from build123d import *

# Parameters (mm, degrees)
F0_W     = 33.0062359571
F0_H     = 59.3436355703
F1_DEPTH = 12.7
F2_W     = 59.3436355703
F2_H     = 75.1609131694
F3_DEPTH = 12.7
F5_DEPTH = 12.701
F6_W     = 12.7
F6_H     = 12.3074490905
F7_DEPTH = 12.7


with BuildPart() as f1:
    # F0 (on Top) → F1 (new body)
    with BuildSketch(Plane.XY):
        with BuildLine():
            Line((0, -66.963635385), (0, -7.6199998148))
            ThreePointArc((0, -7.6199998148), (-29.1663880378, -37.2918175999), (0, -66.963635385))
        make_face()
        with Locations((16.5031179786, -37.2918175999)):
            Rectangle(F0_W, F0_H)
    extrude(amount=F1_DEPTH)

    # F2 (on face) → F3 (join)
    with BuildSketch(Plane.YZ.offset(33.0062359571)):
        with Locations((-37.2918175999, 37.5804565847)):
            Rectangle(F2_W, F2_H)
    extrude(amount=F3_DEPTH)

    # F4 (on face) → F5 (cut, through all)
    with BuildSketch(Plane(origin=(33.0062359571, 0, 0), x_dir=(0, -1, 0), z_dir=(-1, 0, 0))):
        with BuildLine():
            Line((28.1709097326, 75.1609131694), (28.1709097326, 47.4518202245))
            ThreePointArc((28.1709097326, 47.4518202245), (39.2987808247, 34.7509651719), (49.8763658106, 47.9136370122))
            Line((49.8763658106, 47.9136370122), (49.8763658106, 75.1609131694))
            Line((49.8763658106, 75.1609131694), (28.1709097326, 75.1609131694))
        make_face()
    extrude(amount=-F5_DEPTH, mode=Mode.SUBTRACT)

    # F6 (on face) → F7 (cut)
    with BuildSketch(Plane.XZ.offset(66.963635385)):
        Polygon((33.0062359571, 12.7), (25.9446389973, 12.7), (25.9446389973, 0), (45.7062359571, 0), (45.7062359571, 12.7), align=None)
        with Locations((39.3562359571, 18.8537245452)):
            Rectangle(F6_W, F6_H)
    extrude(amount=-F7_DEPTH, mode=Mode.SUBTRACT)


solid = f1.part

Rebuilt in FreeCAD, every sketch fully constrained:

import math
import FreeCAD as App
import Part
import Sketcher
from FreeCAD import Vector
Q = App.Units.Quantity

doc = App.newDocument("Part")
body = doc.addObject("PartDesign::Body", "Body")

# Sketch on XY plane
sketch1 = body.newObject("Sketcher::SketchObject", "Sketch")
sketch1.AttachmentSupport = (doc.getObject("XY_Plane"), [""])
sketch1.MapMode = "FlatFace"
sketch1.addGeometry([
    Part.ArcOfCircle(Part.Circle(Vector(0.509809, -37.291818, 0), Vector(0, 0, 1), 29.676197), math.radians(90.984336), math.radians(269.015664)),
    Part.LineSegment(Vector(0, -66.963635, 0), Vector(33.006236, -66.963635, 0)),
    Part.LineSegment(Vector(33.006236, -66.963635, 0), Vector(33.006236, -7.62, 0)),
    Part.LineSegment(Vector(33.006236, -7.62, 0), Vector(0, -7.62, 0)),
], False)
sketch1.addConstraint([
    Sketcher.Constraint("Coincident", 0, 2, 1, 1),
    Sketcher.Constraint("Coincident", 1, 2, 2, 1),
    Sketcher.Constraint("Coincident", 2, 2, 3, 1),
    Sketcher.Constraint("Coincident", 3, 2, 0, 1),
    Sketcher.Constraint("Horizontal", 1),
    Sketcher.Constraint("Vertical", 2),
    Sketcher.Constraint("Horizontal", 3),
    Sketcher.Constraint("PointOnObject", 0, 2, -2),
    Sketcher.Constraint("PointOnObject", 3, 2, -2),
    Sketcher.Constraint("DistanceY", 2, 2, -1, 1, Q("0.3 in")),
    Sketcher.Constraint("Radius", 0, Q("29.676197 mm")),
    Sketcher.Constraint("DistanceX", 1, 1, 1, 2, Q("33.006236 mm")),
    Sketcher.Constraint("DistanceY", 2, 1, 2, 2, Q("59.343636 mm")),
])
pad1 = body.newObject("PartDesign::Pad", "Pad")
pad1.Profile = sketch1
pad1.Length = Q("0.5 in")

# Sketch on YZ plane
sketch2 = body.newObject("Sketcher::SketchObject", "Sketch001")
sketch2.AttachmentSupport = (doc.getObject("YZ_Plane"), [""])
sketch2.MapMode = "FlatFace"
sketch2.AttachmentOffset = App.Placement(Vector(0, 0, 33.006236), App.Rotation())
sketch2.addGeometry([
    Part.LineSegment(Vector(-66.963635, 75.160913, 0), Vector(-66.963635, 0, 0)),
    Part.LineSegment(Vector(-66.963635, 0, 0), Vector(-7.62, 0, 0)),
    Part.LineSegment(Vector(-7.62, 0, 0), Vector(-7.62, 75.160913, 0)),
    Part.LineSegment(Vector(-7.62, 75.160913, 0), Vector(-66.963635, 75.160913, 0)),
], False)
sketch2.addConstraint([
    Sketcher.Constraint("Coincident", 0, 2, 1, 1),
    Sketcher.Constraint("Coincident", 1, 2, 2, 1),
    Sketcher.Constraint("Coincident", 2, 2, 3, 1),
    Sketcher.Constraint("Coincident", 3, 2, 0, 1),
    Sketcher.Constraint("Vertical", 0),
    Sketcher.Constraint("Horizontal", 1),
    Sketcher.Constraint("Vertical", 2),
    Sketcher.Constraint("Horizontal", 3),
    Sketcher.Constraint("PointOnObject", 0, 2, -1),
    Sketcher.Constraint("DistanceX", 1, 2, -1, 1, Q("0.3 in")),
    Sketcher.Constraint("DistanceX", 1, 1, 1, 2, Q("59.343636 mm")),
    Sketcher.Constraint("DistanceY", 0, 2, 0, 1, Q("75.160913 mm")),
])
pad2 = body.newObject("PartDesign::Pad", "Pad001")
pad2.Profile = sketch2
pad2.Length = Q("0.5 in")

# Sketch on YZ plane
sketch3 = body.newObject("Sketcher::SketchObject", "Sketch002")
sketch3.AttachmentSupport = (doc.getObject("YZ_Plane"), [""])
sketch3.MapMode = "FlatFace"
sketch3.AttachmentOffset = App.Placement(Vector(0, 0, 33.006236), App.Rotation())
sketch3.addGeometry([
    Part.LineSegment(Vector(-28.17091, 75.160913, 0), Vector(-28.17091, 47.45182, 0)),
    Part.ArcOfCircle(Part.Circle(Vector(-39.064317, 45.770816, 0), Vector(0, 0, 1), 11.022345), math.radians(168.789916), math.radians(368.772341)),
    Part.LineSegment(Vector(-49.876366, 47.913637, 0), Vector(-49.876366, 75.160913, 0)),
    Part.LineSegment(Vector(-49.876366, 75.160913, 0), Vector(-28.17091, 75.160913, 0)),
], False)
sketch3.addConstraint([
    Sketcher.Constraint("Coincident", 0, 2, 1, 2),
    Sketcher.Constraint("Coincident", 1, 1, 2, 1),
    Sketcher.Constraint("Coincident", 2, 2, 3, 1),
    Sketcher.Constraint("Coincident", 3, 2, 0, 1),
    Sketcher.Constraint("Vertical", 0),
    Sketcher.Constraint("Vertical", 2),
    Sketcher.Constraint("Horizontal", 3),
    Sketcher.Constraint("Radius", 1, Q("11.022345 mm")),
    Sketcher.Constraint("DistanceX", 3, 1, 3, 2, Q("21.705456 mm")),
    Sketcher.Constraint("DistanceY", 0, 2, 0, 1, Q("27.709093 mm")),
    Sketcher.Constraint("DistanceY", 2, 1, 2, 2, Q("27.247276 mm")),
    Sketcher.Constraint("DistanceX", 0, 2, -1, 1, Q("28.17091 mm")),
    Sketcher.Constraint("DistanceY", -1, 1, 0, 2, Q("47.45182 mm")),
])
pocket1 = body.newObject("PartDesign::Pocket", "Pocket")
pocket1.Profile = sketch3
pocket1.Type = "ThroughAll"
pocket1.Reversed = True

# Sketch on XZ plane
sketch4 = body.newObject("Sketcher::SketchObject", "Sketch003")
sketch4.AttachmentSupport = (doc.getObject("XZ_Plane"), [""])
sketch4.MapMode = "FlatFace"
sketch4.AttachmentOffset = App.Placement(Vector(0, 0, 66.963635), App.Rotation())
sketch4.addGeometry([
    Part.LineSegment(Vector(25.944639, 12.7, 0), Vector(25.944639, 0, 0)),  # 0
    Part.LineSegment(Vector(25.944639, 0, 0), Vector(45.706236, 0, 0)),  # 1
    Part.LineSegment(Vector(45.706236, 0, 0), Vector(45.706236, 25.007449, 0)),  # 2
    Part.LineSegment(Vector(45.706236, 25.007449, 0), Vector(33.006236, 25.007449, 0)),  # 3
    Part.LineSegment(Vector(33.006236, 25.007449, 0), Vector(33.006236, 12.7, 0)),  # 4
    Part.LineSegment(Vector(33.006236, 12.7, 0), Vector(25.944639, 12.7, 0)),  # 5
], False)
sketch4.addConstraint([
    Sketcher.Constraint("Coincident", 0, 2, 1, 1),
    Sketcher.Constraint("Coincident", 1, 2, 2, 1),
    Sketcher.Constraint("Coincident", 2, 2, 3, 1),
    Sketcher.Constraint("Coincident", 3, 2, 4, 1),
    Sketcher.Constraint("Coincident", 4, 2, 5, 1),
    Sketcher.Constraint("Coincident", 5, 2, 0, 1),
    Sketcher.Constraint("Vertical", 0),
    Sketcher.Constraint("Horizontal", 1),
    Sketcher.Constraint("Vertical", 2),
    Sketcher.Constraint("Horizontal", 3),
    Sketcher.Constraint("Vertical", 4),
    Sketcher.Constraint("Horizontal", 5),
    Sketcher.Constraint("PointOnObject", 0, 2, -1),
    Sketcher.Constraint("Equal", 3, 0),
    Sketcher.Constraint("DistanceX", 3, 2, 3, 1, Q("0.5 in")),
    Sketcher.Constraint("DistanceY", 2, 1, 2, 2, Q("25.007449 mm")),
    Sketcher.Constraint("DistanceX", 1, 1, 1, 2, Q("19.761597 mm")),
    Sketcher.Constraint("DistanceX", -1, 1, 0, 2, Q("25.944639 mm")),
])
pocket2 = body.newObject("PartDesign::Pocket", "Pocket001")
pocket2.Profile = sketch4
pocket2.Length = Q("0.5 in")

doc.recompute()
